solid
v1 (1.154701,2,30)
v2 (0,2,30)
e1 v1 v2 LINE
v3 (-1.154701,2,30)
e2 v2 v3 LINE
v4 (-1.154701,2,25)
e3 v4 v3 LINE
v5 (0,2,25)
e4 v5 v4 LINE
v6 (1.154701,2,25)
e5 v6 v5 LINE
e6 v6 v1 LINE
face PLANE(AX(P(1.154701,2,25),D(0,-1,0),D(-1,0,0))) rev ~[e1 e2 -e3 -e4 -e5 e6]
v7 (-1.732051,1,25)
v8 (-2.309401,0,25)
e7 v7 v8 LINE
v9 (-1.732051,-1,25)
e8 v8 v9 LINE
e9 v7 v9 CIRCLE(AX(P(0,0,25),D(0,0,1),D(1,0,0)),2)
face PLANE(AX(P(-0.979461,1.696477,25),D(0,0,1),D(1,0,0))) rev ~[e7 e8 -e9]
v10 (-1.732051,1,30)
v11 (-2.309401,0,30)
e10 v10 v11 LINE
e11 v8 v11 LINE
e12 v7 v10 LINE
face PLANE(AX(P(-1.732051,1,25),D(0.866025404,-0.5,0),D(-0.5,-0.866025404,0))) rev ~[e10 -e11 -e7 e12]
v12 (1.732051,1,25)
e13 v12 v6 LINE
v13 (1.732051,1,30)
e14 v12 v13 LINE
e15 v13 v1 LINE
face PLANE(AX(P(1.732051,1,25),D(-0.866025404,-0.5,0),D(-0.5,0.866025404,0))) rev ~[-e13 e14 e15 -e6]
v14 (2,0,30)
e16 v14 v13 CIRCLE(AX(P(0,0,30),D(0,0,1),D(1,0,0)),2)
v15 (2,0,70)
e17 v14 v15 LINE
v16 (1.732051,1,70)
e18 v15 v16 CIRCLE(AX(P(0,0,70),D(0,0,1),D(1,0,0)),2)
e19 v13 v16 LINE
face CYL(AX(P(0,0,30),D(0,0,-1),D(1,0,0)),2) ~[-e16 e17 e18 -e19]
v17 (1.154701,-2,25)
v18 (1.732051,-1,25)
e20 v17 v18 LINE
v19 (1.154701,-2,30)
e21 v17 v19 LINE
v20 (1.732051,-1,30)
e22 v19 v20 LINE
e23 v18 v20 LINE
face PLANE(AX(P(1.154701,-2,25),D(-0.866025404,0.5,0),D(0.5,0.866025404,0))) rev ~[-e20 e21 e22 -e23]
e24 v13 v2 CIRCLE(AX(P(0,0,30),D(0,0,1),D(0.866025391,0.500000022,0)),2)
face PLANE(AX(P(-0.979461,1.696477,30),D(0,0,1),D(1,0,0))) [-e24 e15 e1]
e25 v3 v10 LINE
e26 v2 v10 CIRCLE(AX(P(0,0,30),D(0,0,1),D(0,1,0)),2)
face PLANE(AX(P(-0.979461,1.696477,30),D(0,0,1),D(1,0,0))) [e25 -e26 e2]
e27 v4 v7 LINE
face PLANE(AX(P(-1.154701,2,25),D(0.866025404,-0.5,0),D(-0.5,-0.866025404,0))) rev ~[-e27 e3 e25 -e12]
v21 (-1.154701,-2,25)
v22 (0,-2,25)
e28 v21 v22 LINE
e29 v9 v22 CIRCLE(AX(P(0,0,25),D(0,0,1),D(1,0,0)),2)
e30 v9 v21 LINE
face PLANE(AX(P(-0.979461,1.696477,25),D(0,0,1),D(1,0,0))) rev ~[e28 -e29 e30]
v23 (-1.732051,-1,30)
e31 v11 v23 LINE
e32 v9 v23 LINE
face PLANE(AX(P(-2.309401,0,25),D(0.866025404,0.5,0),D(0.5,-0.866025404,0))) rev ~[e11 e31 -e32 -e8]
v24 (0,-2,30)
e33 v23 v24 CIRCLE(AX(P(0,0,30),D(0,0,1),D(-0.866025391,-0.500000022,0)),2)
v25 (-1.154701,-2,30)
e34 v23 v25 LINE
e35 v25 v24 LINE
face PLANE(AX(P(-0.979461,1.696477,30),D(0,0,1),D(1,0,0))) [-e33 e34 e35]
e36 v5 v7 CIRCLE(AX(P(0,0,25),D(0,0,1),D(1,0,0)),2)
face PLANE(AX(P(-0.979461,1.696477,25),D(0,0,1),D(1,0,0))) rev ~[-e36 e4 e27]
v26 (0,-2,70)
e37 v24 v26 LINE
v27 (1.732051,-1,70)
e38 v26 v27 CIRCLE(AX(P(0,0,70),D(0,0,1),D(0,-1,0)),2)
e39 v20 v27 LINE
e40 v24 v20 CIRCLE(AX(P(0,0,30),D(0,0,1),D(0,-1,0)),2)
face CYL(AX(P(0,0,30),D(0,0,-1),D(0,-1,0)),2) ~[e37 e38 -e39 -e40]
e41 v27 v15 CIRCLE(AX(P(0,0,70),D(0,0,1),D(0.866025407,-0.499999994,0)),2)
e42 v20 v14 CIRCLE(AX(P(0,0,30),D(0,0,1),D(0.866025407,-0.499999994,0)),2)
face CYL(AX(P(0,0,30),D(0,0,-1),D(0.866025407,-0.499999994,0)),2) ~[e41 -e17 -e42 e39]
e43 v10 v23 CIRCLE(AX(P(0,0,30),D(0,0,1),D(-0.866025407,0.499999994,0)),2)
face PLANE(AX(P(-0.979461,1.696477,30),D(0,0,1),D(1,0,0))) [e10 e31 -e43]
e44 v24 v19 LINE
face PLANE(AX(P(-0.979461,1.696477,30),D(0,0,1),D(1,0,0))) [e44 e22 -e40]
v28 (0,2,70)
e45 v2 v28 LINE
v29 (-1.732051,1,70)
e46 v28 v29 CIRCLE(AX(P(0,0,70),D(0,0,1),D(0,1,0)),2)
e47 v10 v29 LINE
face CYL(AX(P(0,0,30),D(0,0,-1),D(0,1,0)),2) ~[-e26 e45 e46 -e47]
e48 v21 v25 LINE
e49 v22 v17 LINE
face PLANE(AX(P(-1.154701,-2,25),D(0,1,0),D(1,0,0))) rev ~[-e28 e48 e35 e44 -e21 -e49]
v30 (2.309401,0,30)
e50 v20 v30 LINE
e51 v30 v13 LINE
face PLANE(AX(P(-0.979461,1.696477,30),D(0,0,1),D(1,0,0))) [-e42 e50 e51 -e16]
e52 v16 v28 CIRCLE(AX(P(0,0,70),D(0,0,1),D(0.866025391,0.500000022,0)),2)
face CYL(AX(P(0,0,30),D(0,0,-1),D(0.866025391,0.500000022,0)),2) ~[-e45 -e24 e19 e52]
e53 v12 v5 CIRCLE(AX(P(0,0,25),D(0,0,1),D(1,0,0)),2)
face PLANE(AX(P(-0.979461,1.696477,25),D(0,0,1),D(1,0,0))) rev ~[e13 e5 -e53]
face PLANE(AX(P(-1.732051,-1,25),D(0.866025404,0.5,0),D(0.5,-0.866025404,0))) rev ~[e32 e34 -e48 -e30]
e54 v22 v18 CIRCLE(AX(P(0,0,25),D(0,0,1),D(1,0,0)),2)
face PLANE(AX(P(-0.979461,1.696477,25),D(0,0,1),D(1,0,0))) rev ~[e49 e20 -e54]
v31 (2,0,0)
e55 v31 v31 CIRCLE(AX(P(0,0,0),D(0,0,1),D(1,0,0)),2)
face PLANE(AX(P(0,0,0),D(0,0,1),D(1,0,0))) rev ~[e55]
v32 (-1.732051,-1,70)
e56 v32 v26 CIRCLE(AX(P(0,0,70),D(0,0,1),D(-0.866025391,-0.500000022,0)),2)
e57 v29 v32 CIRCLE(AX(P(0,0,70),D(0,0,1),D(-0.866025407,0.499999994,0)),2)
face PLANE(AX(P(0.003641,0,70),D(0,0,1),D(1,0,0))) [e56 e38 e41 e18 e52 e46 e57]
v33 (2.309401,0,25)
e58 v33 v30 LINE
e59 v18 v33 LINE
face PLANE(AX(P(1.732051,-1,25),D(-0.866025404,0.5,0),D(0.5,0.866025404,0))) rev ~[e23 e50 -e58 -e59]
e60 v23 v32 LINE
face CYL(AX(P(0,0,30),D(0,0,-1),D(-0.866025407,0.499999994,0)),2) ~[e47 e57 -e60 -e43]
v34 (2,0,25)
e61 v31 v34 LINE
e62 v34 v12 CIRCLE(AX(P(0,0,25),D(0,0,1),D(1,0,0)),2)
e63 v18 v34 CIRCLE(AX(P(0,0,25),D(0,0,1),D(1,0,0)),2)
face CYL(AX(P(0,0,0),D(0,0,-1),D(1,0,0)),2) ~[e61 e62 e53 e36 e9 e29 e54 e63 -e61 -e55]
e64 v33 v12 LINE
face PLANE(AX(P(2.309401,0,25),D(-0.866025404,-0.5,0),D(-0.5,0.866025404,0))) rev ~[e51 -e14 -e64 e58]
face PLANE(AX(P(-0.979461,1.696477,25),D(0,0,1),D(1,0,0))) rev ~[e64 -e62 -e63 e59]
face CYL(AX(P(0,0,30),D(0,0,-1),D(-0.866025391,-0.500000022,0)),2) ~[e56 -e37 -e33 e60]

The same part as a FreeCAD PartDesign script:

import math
import FreeCAD as App
import Part
import Sketcher
Q = App.Units.Quantity

doc = App.newDocument("Part")
params = doc.addObject("Spreadsheet::Sheet", "Params")
for row, (alias, value) in enumerate([
    ("sketch1_diameter", "4 mm"),
    ("pad1_length", "25 mm"),
    ("pad2_length", "5 mm"),
    ("sketch3_radius", "2 mm"),
    ("pad3_length", "40 mm"),
], start=1):
    params.set(f"A{row}", alias)
    params.set(f"B{row}", "=" + value)
    params.setAlias(f"B{row}", alias)

body = doc.addObject("PartDesign::Body", "Body")

# Sketch on XY plane
sketch1 = body.newObject("Sketcher::SketchObject", "Sketch")
sketch1.AttachmentSupport = (doc.getObject("XY_Plane"), [""])
sketch1.MapMode = "FlatFace"
sketch1.addGeometry(Part.Circle(App.Vector(0, 0, 0), App.Vector(0, 0, 1), 2), False)
sketch1.addConstraint([
    Sketcher.Constraint("Coincident", 0, 3, -1, 1),
    Sketcher.Constraint("Diameter", 0, 4.0),
])
sketch1.setExpression("Constraints[1]", "Params.sketch1_diameter")
pad1 = body.newObject("PartDesign::Pad", "Pad")
pad1.Profile = sketch1
pad1.setExpression("Length", "Params.pad1_length")

# Sketch on XY plane
sketch2 = body.newObject("Sketcher::SketchObject", "Sketch001")
sketch2.AttachmentSupport = (doc.getObject("XY_Plane"), [""])
sketch2.MapMode = "FlatFace"
sketch2.AttachmentOffset = App.Placement(App.Vector(0, 0, 25), App.Rotation())
sketch2.addGeometry([
    Part.LineSegment(App.Vector(-1.2, 2, 0), App.Vector(-1.7, 1, 0)),  # 0
    Part.LineSegment(App.Vector(-1.7, 1, 0), App.Vector(-2.3, 0, 0)),  # 1
    Part.LineSegment(App.Vector(-2.3, 0, 0), App.Vector(-1.7, -1, 0)),  # 2
    Part.LineSegment(App.Vector(-1.7, -1, 0), App.Vector(-1.2, -2, 0)),  # 3
    Part.LineSegment(App.Vector(-1.2, -2, 0), App.Vector(1.2, -2, 0)),  # 4
    Part.LineSegment(App.Vector(1.2, -2, 0), App.Vector(1.7, -1, 0)),  # 5
    Part.LineSegment(App.Vector(1.7, -1, 0), App.Vector(2.3, 0, 0)),  # 6
    Part.LineSegment(App.Vector(2.3, 0, 0), App.Vector(1.7, 1, 0)),  # 7
    Part.LineSegment(App.Vector(1.7, 1, 0), App.Vector(1.2, 2, 0)),  # 8
    Part.LineSegment(App.Vector(1.2, 2, 0), App.Vector(-1.2, 2, 0)),  # 9
], False)
sketch2.addConstraint([
    Sketcher.Constraint("Coincident", 0, 2, 1, 1),
    Sketcher.Constraint("Coincident", 1, 2, 2, 1),
    Sketcher.Constraint("Coincident", 2, 2, 3, 1),
    Sketcher.Constraint("Coincident", 3, 2, 4, 1),
    Sketcher.Constraint("Coincident", 4, 2, 5, 1),
    Sketcher.Constraint("Coincident", 5, 2, 6, 1),
    Sketcher.Constraint("Coincident", 6, 2, 7, 1),
    Sketcher.Constraint("Coincident", 7, 2, 8, 1),
    Sketcher.Constraint("Coincident", 8, 2, 9, 1),
    Sketcher.Constraint("Coincident", 9, 2, 0, 1),
    Sketcher.Constraint("Horizontal", 4),
    Sketcher.Constraint("Horizontal", 9),
    Sketcher.Constraint("Symmetric", 0, 2, 5, 2, -1, 1),
    Sketcher.Constraint("Symmetric", 1, 2, 6, 2, -1, 1),
    Sketcher.Constraint("Symmetric", 2, 2, 7, 2, -1, 1),
    Sketcher.Constraint("Symmetric", 3, 2, 8, 2, -1, 1),
    Sketcher.Constraint("Symmetric", 2, 2, 5, 2, -2),
    Sketcher.Constraint("PointOnObject", 1, 2, -1),
    Sketcher.Constraint("Parallel", 0, 1),
    Sketcher.Constraint("Parallel", 2, 3),
    Sketcher.Constraint("Parallel", 1, 5),
    Sketcher.Constraint("Equal", 0, 1),
    Sketcher.Constraint("Angle", 0, Q("-120 deg")),
    Sketcher.Constraint("DistanceY", -1, 1, 0, 2, 1.0),
    Sketcher.Constraint("DistanceX", 4, 1, 4, 2, 2.309401),
])
pad2 = body.newObject("PartDesign::Pad", "Pad001")
pad2.Profile = sketch2
pad2.setExpression("Length", "Params.pad2_length")

# Sketch on XY plane
sketch3 = body.newObject("Sketcher::SketchObject", "Sketch002")
sketch3.AttachmentSupport = (doc.getObject("XY_Plane"), [""])
sketch3.MapMode = "FlatFace"
sketch3.AttachmentOffset = App.Placement(App.Vector(0, 0, 30), App.Rotation())
sketch3.addGeometry([
    Part.ArcOfCircle(Part.Circle(App.Vector(0, 0, 0), App.Vector(0, 0, 1), 2), math.radians(-30), math.radians(0)),  # 0
    Part.ArcOfCircle(Part.Circle(App.Vector(0, 0, 0), App.Vector(0, 0, 1), 2), math.radians(0), math.radians(30)),  # 1
    Part.ArcOfCircle(Part.Circle(App.Vector(0, 0, 0), App.Vector(0, 0, 1), 2), math.radians(30), math.radians(90)),  # 2
    Part.ArcOfCircle(Part.Circle(App.Vector(0, 0, 0), App.Vector(0, 0, 1), 2), math.radians(90), math.radians(150)),  # 3
    Part.ArcOfCircle(Part.Circle(App.Vector(0, 0, 0), App.Vector(0, 0, 1), 2), math.radians(150), math.radians(210)),  # 4
    Part.ArcOfCircle(Part.Circle(App.Vector(0, 0, 0), App.Vector(0, 0, 1), 2), math.radians(-150), math.radians(-90)),  # 5
    Part.ArcOfCircle(Part.Circle(App.Vector(0, 0, 0), App.Vector(0, 0, 1), 2), math.radians(-90), math.radians(-30)),  # 6
], False)
sketch3.addConstraint([
    Sketcher.Constraint("Tangent", 0, 2, 1, 1),
    Sketcher.Constraint("Tangent", 1, 2, 2, 1),
    Sketcher.Constraint("Tangent", 2, 2, 3, 1),
    Sketcher.Constraint("Tangent", 3, 2, 4, 1),
    Sketcher.Constraint("Tangent", 4, 2, 5, 1),
    Sketcher.Constraint("Tangent", 5, 2, 6, 1),
    Sketcher.Constraint("Tangent", 6, 2, 0, 1),
    Sketcher.Constraint("Coincident", 0, 3, -1, 1),
    Sketcher.Constraint("Coincident", 2, 3, -1, 1),
    Sketcher.Constraint("Coincident", 4, 3, -1, 1),
    Sketcher.Constraint("PointOnObject", 0, 2, -1),
    Sketcher.Constraint("PointOnObject", 2, 2, -2),
    Sketcher.Constraint("PointOnObject", 5, 2, -2),
    Sketcher.Constraint("Horizontal", 1, 2, 3, 2),
    Sketcher.Constraint("Horizontal", 4, 2, 6, 2),
    Sketcher.Constraint("Vertical", 3, 2, 4, 2),
    Sketcher.Constraint("Radius", 0, 2.0),
    Sketcher.Constraint("DistanceY", -1, 1, 1, 2, 1.0),
])
sketch3.setExpression("Constraints[16]", "Params.sketch3_radius")
pad3 = body.newObject("PartDesign::Pad", "Pad002")
pad3.Profile = sketch3
pad3.setExpression("Length", "Params.pad3_length")

doc.recompute()
